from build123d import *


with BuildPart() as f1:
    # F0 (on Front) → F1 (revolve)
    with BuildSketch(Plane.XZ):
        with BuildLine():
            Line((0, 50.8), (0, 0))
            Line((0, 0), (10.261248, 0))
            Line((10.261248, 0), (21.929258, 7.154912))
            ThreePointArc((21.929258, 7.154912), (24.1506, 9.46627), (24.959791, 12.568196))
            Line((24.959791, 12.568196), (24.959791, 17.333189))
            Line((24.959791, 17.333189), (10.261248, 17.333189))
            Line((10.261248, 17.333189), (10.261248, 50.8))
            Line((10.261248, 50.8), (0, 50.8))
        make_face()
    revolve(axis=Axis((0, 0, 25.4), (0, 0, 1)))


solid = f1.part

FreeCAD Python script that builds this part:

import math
import FreeCAD as App
import Part
import Sketcher
Q = App.Units.Quantity

doc = App.newDocument("Part")
body = doc.addObject("PartDesign::Body", "Body")

sketch1 = body.newObject("Sketcher::SketchObject", "Sketch")
sketch1.AttachmentSupport = (doc.getObject("XZ_Plane"), [""])
sketch1.MapMode = "FlatFace"
sketch1.addGeometry(Part.LineSegment(App.Vector(0, 50.8, 0), App.Vector(0, 0, 0)), False)
sketch1.addGeometry(Part.LineSegment(App.Vector(0, 0, 0), App.Vector(10.3, 0, 0)), False)
sketch1.addGeometry(Part.LineSegment(App.Vector(10.3, 0, 0), App.Vector(21.9, 7.2, 0)), False)
sketch1.addGeometry(Part.ArcOfCircle(Part.Circle(App.Vector(18.6, 12.6, 0), App.Vector(0, 0, 1), 6.3), math.radians(-58), math.radians(0)), False)
sketch1.addGeometry(Part.LineSegment(App.Vector(25, 12.6, 0), App.Vector(25, 17.3, 0)), False)
sketch1.addGeometry(Part.LineSegment(App.Vector(25, 17.3, 0), App.Vector(10.3, 17.3, 0)), False)
sketch1.addGeometry(Part.LineSegment(App.Vector(10.3, 17.3, 0), App.Vector(10.3, 50.8, 0)), False)
sketch1.addGeometry(Part.LineSegment(App.Vector(10.3, 50.8, 0), App.Vector(0, 50.8, 0)), False)
sketch1.addConstraint(Sketcher.Constraint("Coincident", 0, 2, 1, 1))
sketch1.addConstraint(Sketcher.Constraint("Coincident", 1, 2, 2, 1))
sketch1.addConstraint(Sketcher.Constraint("Tangent", 2, 2, 3, 1))
sketch1.addConstraint(Sketcher.Constraint("Tangent", 3, 2, 4, 1))
sketch1.addConstraint(Sketcher.Constraint("Coincident", 4, 2, 5, 1))
sketch1.addConstraint(Sketcher.Constraint("Coincident", 5, 2, 6, 1))
sketch1.addConstraint(Sketcher.Constraint("Coincident", 6, 2, 7, 1))
sketch1.addConstraint(Sketcher.Constraint("Coincident", 7, 2, 0, 1))
sketch1.addConstraint(Sketcher.Constraint("Vertical", 0))
sketch1.addConstraint(Sketcher.Constraint("Horizontal", 1))
sketch1.addConstraint(Sketcher.Constraint("Vertical", 4))
sketch1.addConstraint(Sketcher.Constraint("Horizontal", 5))
sketch1.addConstraint(Sketcher.Constraint("Vertical", 6))
sketch1.addConstraint(Sketcher.Constraint("Horizontal", 7))
sketch1.addConstraint(Sketcher.Constraint("Coincident", 0, 2, -1, 1))
sketch1.addConstraint(Sketcher.Constraint("Vertical", 1, 2, 5, 2))
sketch1.addConstraint(Sketcher.Constraint("DistanceY", 0, 2, 0, 1, Q("2 in")))
sketch1.addConstraint(Sketcher.Constraint("Radius", 3, Q("0.2499999 in")))
sketch1.addConstraint(Sketcher.Constraint("DistanceY", 6, 1, 6, 2, Q("33.466811 mm")))
sketch1.addConstraint(Sketcher.Constraint("DistanceX", 1, 1, 1, 2, Q("10.261248 mm")))
sketch1.addConstraint(Sketcher.Constraint("DistanceX", 5, 2, 5, 1, Q("14.698543 mm")))
sketch1.addConstraint(Sketcher.Constraint("DistanceY", 4, 1, 4, 2, Q("4.764993 mm")))
revolution = body.newObject("PartDesign::Revolution", "Revolution")
revolution.Profile = sketch1
revolution.ReferenceAxis = (sketch1, ["V_Axis"])
revolution.Angle = 360

doc.recompute()
